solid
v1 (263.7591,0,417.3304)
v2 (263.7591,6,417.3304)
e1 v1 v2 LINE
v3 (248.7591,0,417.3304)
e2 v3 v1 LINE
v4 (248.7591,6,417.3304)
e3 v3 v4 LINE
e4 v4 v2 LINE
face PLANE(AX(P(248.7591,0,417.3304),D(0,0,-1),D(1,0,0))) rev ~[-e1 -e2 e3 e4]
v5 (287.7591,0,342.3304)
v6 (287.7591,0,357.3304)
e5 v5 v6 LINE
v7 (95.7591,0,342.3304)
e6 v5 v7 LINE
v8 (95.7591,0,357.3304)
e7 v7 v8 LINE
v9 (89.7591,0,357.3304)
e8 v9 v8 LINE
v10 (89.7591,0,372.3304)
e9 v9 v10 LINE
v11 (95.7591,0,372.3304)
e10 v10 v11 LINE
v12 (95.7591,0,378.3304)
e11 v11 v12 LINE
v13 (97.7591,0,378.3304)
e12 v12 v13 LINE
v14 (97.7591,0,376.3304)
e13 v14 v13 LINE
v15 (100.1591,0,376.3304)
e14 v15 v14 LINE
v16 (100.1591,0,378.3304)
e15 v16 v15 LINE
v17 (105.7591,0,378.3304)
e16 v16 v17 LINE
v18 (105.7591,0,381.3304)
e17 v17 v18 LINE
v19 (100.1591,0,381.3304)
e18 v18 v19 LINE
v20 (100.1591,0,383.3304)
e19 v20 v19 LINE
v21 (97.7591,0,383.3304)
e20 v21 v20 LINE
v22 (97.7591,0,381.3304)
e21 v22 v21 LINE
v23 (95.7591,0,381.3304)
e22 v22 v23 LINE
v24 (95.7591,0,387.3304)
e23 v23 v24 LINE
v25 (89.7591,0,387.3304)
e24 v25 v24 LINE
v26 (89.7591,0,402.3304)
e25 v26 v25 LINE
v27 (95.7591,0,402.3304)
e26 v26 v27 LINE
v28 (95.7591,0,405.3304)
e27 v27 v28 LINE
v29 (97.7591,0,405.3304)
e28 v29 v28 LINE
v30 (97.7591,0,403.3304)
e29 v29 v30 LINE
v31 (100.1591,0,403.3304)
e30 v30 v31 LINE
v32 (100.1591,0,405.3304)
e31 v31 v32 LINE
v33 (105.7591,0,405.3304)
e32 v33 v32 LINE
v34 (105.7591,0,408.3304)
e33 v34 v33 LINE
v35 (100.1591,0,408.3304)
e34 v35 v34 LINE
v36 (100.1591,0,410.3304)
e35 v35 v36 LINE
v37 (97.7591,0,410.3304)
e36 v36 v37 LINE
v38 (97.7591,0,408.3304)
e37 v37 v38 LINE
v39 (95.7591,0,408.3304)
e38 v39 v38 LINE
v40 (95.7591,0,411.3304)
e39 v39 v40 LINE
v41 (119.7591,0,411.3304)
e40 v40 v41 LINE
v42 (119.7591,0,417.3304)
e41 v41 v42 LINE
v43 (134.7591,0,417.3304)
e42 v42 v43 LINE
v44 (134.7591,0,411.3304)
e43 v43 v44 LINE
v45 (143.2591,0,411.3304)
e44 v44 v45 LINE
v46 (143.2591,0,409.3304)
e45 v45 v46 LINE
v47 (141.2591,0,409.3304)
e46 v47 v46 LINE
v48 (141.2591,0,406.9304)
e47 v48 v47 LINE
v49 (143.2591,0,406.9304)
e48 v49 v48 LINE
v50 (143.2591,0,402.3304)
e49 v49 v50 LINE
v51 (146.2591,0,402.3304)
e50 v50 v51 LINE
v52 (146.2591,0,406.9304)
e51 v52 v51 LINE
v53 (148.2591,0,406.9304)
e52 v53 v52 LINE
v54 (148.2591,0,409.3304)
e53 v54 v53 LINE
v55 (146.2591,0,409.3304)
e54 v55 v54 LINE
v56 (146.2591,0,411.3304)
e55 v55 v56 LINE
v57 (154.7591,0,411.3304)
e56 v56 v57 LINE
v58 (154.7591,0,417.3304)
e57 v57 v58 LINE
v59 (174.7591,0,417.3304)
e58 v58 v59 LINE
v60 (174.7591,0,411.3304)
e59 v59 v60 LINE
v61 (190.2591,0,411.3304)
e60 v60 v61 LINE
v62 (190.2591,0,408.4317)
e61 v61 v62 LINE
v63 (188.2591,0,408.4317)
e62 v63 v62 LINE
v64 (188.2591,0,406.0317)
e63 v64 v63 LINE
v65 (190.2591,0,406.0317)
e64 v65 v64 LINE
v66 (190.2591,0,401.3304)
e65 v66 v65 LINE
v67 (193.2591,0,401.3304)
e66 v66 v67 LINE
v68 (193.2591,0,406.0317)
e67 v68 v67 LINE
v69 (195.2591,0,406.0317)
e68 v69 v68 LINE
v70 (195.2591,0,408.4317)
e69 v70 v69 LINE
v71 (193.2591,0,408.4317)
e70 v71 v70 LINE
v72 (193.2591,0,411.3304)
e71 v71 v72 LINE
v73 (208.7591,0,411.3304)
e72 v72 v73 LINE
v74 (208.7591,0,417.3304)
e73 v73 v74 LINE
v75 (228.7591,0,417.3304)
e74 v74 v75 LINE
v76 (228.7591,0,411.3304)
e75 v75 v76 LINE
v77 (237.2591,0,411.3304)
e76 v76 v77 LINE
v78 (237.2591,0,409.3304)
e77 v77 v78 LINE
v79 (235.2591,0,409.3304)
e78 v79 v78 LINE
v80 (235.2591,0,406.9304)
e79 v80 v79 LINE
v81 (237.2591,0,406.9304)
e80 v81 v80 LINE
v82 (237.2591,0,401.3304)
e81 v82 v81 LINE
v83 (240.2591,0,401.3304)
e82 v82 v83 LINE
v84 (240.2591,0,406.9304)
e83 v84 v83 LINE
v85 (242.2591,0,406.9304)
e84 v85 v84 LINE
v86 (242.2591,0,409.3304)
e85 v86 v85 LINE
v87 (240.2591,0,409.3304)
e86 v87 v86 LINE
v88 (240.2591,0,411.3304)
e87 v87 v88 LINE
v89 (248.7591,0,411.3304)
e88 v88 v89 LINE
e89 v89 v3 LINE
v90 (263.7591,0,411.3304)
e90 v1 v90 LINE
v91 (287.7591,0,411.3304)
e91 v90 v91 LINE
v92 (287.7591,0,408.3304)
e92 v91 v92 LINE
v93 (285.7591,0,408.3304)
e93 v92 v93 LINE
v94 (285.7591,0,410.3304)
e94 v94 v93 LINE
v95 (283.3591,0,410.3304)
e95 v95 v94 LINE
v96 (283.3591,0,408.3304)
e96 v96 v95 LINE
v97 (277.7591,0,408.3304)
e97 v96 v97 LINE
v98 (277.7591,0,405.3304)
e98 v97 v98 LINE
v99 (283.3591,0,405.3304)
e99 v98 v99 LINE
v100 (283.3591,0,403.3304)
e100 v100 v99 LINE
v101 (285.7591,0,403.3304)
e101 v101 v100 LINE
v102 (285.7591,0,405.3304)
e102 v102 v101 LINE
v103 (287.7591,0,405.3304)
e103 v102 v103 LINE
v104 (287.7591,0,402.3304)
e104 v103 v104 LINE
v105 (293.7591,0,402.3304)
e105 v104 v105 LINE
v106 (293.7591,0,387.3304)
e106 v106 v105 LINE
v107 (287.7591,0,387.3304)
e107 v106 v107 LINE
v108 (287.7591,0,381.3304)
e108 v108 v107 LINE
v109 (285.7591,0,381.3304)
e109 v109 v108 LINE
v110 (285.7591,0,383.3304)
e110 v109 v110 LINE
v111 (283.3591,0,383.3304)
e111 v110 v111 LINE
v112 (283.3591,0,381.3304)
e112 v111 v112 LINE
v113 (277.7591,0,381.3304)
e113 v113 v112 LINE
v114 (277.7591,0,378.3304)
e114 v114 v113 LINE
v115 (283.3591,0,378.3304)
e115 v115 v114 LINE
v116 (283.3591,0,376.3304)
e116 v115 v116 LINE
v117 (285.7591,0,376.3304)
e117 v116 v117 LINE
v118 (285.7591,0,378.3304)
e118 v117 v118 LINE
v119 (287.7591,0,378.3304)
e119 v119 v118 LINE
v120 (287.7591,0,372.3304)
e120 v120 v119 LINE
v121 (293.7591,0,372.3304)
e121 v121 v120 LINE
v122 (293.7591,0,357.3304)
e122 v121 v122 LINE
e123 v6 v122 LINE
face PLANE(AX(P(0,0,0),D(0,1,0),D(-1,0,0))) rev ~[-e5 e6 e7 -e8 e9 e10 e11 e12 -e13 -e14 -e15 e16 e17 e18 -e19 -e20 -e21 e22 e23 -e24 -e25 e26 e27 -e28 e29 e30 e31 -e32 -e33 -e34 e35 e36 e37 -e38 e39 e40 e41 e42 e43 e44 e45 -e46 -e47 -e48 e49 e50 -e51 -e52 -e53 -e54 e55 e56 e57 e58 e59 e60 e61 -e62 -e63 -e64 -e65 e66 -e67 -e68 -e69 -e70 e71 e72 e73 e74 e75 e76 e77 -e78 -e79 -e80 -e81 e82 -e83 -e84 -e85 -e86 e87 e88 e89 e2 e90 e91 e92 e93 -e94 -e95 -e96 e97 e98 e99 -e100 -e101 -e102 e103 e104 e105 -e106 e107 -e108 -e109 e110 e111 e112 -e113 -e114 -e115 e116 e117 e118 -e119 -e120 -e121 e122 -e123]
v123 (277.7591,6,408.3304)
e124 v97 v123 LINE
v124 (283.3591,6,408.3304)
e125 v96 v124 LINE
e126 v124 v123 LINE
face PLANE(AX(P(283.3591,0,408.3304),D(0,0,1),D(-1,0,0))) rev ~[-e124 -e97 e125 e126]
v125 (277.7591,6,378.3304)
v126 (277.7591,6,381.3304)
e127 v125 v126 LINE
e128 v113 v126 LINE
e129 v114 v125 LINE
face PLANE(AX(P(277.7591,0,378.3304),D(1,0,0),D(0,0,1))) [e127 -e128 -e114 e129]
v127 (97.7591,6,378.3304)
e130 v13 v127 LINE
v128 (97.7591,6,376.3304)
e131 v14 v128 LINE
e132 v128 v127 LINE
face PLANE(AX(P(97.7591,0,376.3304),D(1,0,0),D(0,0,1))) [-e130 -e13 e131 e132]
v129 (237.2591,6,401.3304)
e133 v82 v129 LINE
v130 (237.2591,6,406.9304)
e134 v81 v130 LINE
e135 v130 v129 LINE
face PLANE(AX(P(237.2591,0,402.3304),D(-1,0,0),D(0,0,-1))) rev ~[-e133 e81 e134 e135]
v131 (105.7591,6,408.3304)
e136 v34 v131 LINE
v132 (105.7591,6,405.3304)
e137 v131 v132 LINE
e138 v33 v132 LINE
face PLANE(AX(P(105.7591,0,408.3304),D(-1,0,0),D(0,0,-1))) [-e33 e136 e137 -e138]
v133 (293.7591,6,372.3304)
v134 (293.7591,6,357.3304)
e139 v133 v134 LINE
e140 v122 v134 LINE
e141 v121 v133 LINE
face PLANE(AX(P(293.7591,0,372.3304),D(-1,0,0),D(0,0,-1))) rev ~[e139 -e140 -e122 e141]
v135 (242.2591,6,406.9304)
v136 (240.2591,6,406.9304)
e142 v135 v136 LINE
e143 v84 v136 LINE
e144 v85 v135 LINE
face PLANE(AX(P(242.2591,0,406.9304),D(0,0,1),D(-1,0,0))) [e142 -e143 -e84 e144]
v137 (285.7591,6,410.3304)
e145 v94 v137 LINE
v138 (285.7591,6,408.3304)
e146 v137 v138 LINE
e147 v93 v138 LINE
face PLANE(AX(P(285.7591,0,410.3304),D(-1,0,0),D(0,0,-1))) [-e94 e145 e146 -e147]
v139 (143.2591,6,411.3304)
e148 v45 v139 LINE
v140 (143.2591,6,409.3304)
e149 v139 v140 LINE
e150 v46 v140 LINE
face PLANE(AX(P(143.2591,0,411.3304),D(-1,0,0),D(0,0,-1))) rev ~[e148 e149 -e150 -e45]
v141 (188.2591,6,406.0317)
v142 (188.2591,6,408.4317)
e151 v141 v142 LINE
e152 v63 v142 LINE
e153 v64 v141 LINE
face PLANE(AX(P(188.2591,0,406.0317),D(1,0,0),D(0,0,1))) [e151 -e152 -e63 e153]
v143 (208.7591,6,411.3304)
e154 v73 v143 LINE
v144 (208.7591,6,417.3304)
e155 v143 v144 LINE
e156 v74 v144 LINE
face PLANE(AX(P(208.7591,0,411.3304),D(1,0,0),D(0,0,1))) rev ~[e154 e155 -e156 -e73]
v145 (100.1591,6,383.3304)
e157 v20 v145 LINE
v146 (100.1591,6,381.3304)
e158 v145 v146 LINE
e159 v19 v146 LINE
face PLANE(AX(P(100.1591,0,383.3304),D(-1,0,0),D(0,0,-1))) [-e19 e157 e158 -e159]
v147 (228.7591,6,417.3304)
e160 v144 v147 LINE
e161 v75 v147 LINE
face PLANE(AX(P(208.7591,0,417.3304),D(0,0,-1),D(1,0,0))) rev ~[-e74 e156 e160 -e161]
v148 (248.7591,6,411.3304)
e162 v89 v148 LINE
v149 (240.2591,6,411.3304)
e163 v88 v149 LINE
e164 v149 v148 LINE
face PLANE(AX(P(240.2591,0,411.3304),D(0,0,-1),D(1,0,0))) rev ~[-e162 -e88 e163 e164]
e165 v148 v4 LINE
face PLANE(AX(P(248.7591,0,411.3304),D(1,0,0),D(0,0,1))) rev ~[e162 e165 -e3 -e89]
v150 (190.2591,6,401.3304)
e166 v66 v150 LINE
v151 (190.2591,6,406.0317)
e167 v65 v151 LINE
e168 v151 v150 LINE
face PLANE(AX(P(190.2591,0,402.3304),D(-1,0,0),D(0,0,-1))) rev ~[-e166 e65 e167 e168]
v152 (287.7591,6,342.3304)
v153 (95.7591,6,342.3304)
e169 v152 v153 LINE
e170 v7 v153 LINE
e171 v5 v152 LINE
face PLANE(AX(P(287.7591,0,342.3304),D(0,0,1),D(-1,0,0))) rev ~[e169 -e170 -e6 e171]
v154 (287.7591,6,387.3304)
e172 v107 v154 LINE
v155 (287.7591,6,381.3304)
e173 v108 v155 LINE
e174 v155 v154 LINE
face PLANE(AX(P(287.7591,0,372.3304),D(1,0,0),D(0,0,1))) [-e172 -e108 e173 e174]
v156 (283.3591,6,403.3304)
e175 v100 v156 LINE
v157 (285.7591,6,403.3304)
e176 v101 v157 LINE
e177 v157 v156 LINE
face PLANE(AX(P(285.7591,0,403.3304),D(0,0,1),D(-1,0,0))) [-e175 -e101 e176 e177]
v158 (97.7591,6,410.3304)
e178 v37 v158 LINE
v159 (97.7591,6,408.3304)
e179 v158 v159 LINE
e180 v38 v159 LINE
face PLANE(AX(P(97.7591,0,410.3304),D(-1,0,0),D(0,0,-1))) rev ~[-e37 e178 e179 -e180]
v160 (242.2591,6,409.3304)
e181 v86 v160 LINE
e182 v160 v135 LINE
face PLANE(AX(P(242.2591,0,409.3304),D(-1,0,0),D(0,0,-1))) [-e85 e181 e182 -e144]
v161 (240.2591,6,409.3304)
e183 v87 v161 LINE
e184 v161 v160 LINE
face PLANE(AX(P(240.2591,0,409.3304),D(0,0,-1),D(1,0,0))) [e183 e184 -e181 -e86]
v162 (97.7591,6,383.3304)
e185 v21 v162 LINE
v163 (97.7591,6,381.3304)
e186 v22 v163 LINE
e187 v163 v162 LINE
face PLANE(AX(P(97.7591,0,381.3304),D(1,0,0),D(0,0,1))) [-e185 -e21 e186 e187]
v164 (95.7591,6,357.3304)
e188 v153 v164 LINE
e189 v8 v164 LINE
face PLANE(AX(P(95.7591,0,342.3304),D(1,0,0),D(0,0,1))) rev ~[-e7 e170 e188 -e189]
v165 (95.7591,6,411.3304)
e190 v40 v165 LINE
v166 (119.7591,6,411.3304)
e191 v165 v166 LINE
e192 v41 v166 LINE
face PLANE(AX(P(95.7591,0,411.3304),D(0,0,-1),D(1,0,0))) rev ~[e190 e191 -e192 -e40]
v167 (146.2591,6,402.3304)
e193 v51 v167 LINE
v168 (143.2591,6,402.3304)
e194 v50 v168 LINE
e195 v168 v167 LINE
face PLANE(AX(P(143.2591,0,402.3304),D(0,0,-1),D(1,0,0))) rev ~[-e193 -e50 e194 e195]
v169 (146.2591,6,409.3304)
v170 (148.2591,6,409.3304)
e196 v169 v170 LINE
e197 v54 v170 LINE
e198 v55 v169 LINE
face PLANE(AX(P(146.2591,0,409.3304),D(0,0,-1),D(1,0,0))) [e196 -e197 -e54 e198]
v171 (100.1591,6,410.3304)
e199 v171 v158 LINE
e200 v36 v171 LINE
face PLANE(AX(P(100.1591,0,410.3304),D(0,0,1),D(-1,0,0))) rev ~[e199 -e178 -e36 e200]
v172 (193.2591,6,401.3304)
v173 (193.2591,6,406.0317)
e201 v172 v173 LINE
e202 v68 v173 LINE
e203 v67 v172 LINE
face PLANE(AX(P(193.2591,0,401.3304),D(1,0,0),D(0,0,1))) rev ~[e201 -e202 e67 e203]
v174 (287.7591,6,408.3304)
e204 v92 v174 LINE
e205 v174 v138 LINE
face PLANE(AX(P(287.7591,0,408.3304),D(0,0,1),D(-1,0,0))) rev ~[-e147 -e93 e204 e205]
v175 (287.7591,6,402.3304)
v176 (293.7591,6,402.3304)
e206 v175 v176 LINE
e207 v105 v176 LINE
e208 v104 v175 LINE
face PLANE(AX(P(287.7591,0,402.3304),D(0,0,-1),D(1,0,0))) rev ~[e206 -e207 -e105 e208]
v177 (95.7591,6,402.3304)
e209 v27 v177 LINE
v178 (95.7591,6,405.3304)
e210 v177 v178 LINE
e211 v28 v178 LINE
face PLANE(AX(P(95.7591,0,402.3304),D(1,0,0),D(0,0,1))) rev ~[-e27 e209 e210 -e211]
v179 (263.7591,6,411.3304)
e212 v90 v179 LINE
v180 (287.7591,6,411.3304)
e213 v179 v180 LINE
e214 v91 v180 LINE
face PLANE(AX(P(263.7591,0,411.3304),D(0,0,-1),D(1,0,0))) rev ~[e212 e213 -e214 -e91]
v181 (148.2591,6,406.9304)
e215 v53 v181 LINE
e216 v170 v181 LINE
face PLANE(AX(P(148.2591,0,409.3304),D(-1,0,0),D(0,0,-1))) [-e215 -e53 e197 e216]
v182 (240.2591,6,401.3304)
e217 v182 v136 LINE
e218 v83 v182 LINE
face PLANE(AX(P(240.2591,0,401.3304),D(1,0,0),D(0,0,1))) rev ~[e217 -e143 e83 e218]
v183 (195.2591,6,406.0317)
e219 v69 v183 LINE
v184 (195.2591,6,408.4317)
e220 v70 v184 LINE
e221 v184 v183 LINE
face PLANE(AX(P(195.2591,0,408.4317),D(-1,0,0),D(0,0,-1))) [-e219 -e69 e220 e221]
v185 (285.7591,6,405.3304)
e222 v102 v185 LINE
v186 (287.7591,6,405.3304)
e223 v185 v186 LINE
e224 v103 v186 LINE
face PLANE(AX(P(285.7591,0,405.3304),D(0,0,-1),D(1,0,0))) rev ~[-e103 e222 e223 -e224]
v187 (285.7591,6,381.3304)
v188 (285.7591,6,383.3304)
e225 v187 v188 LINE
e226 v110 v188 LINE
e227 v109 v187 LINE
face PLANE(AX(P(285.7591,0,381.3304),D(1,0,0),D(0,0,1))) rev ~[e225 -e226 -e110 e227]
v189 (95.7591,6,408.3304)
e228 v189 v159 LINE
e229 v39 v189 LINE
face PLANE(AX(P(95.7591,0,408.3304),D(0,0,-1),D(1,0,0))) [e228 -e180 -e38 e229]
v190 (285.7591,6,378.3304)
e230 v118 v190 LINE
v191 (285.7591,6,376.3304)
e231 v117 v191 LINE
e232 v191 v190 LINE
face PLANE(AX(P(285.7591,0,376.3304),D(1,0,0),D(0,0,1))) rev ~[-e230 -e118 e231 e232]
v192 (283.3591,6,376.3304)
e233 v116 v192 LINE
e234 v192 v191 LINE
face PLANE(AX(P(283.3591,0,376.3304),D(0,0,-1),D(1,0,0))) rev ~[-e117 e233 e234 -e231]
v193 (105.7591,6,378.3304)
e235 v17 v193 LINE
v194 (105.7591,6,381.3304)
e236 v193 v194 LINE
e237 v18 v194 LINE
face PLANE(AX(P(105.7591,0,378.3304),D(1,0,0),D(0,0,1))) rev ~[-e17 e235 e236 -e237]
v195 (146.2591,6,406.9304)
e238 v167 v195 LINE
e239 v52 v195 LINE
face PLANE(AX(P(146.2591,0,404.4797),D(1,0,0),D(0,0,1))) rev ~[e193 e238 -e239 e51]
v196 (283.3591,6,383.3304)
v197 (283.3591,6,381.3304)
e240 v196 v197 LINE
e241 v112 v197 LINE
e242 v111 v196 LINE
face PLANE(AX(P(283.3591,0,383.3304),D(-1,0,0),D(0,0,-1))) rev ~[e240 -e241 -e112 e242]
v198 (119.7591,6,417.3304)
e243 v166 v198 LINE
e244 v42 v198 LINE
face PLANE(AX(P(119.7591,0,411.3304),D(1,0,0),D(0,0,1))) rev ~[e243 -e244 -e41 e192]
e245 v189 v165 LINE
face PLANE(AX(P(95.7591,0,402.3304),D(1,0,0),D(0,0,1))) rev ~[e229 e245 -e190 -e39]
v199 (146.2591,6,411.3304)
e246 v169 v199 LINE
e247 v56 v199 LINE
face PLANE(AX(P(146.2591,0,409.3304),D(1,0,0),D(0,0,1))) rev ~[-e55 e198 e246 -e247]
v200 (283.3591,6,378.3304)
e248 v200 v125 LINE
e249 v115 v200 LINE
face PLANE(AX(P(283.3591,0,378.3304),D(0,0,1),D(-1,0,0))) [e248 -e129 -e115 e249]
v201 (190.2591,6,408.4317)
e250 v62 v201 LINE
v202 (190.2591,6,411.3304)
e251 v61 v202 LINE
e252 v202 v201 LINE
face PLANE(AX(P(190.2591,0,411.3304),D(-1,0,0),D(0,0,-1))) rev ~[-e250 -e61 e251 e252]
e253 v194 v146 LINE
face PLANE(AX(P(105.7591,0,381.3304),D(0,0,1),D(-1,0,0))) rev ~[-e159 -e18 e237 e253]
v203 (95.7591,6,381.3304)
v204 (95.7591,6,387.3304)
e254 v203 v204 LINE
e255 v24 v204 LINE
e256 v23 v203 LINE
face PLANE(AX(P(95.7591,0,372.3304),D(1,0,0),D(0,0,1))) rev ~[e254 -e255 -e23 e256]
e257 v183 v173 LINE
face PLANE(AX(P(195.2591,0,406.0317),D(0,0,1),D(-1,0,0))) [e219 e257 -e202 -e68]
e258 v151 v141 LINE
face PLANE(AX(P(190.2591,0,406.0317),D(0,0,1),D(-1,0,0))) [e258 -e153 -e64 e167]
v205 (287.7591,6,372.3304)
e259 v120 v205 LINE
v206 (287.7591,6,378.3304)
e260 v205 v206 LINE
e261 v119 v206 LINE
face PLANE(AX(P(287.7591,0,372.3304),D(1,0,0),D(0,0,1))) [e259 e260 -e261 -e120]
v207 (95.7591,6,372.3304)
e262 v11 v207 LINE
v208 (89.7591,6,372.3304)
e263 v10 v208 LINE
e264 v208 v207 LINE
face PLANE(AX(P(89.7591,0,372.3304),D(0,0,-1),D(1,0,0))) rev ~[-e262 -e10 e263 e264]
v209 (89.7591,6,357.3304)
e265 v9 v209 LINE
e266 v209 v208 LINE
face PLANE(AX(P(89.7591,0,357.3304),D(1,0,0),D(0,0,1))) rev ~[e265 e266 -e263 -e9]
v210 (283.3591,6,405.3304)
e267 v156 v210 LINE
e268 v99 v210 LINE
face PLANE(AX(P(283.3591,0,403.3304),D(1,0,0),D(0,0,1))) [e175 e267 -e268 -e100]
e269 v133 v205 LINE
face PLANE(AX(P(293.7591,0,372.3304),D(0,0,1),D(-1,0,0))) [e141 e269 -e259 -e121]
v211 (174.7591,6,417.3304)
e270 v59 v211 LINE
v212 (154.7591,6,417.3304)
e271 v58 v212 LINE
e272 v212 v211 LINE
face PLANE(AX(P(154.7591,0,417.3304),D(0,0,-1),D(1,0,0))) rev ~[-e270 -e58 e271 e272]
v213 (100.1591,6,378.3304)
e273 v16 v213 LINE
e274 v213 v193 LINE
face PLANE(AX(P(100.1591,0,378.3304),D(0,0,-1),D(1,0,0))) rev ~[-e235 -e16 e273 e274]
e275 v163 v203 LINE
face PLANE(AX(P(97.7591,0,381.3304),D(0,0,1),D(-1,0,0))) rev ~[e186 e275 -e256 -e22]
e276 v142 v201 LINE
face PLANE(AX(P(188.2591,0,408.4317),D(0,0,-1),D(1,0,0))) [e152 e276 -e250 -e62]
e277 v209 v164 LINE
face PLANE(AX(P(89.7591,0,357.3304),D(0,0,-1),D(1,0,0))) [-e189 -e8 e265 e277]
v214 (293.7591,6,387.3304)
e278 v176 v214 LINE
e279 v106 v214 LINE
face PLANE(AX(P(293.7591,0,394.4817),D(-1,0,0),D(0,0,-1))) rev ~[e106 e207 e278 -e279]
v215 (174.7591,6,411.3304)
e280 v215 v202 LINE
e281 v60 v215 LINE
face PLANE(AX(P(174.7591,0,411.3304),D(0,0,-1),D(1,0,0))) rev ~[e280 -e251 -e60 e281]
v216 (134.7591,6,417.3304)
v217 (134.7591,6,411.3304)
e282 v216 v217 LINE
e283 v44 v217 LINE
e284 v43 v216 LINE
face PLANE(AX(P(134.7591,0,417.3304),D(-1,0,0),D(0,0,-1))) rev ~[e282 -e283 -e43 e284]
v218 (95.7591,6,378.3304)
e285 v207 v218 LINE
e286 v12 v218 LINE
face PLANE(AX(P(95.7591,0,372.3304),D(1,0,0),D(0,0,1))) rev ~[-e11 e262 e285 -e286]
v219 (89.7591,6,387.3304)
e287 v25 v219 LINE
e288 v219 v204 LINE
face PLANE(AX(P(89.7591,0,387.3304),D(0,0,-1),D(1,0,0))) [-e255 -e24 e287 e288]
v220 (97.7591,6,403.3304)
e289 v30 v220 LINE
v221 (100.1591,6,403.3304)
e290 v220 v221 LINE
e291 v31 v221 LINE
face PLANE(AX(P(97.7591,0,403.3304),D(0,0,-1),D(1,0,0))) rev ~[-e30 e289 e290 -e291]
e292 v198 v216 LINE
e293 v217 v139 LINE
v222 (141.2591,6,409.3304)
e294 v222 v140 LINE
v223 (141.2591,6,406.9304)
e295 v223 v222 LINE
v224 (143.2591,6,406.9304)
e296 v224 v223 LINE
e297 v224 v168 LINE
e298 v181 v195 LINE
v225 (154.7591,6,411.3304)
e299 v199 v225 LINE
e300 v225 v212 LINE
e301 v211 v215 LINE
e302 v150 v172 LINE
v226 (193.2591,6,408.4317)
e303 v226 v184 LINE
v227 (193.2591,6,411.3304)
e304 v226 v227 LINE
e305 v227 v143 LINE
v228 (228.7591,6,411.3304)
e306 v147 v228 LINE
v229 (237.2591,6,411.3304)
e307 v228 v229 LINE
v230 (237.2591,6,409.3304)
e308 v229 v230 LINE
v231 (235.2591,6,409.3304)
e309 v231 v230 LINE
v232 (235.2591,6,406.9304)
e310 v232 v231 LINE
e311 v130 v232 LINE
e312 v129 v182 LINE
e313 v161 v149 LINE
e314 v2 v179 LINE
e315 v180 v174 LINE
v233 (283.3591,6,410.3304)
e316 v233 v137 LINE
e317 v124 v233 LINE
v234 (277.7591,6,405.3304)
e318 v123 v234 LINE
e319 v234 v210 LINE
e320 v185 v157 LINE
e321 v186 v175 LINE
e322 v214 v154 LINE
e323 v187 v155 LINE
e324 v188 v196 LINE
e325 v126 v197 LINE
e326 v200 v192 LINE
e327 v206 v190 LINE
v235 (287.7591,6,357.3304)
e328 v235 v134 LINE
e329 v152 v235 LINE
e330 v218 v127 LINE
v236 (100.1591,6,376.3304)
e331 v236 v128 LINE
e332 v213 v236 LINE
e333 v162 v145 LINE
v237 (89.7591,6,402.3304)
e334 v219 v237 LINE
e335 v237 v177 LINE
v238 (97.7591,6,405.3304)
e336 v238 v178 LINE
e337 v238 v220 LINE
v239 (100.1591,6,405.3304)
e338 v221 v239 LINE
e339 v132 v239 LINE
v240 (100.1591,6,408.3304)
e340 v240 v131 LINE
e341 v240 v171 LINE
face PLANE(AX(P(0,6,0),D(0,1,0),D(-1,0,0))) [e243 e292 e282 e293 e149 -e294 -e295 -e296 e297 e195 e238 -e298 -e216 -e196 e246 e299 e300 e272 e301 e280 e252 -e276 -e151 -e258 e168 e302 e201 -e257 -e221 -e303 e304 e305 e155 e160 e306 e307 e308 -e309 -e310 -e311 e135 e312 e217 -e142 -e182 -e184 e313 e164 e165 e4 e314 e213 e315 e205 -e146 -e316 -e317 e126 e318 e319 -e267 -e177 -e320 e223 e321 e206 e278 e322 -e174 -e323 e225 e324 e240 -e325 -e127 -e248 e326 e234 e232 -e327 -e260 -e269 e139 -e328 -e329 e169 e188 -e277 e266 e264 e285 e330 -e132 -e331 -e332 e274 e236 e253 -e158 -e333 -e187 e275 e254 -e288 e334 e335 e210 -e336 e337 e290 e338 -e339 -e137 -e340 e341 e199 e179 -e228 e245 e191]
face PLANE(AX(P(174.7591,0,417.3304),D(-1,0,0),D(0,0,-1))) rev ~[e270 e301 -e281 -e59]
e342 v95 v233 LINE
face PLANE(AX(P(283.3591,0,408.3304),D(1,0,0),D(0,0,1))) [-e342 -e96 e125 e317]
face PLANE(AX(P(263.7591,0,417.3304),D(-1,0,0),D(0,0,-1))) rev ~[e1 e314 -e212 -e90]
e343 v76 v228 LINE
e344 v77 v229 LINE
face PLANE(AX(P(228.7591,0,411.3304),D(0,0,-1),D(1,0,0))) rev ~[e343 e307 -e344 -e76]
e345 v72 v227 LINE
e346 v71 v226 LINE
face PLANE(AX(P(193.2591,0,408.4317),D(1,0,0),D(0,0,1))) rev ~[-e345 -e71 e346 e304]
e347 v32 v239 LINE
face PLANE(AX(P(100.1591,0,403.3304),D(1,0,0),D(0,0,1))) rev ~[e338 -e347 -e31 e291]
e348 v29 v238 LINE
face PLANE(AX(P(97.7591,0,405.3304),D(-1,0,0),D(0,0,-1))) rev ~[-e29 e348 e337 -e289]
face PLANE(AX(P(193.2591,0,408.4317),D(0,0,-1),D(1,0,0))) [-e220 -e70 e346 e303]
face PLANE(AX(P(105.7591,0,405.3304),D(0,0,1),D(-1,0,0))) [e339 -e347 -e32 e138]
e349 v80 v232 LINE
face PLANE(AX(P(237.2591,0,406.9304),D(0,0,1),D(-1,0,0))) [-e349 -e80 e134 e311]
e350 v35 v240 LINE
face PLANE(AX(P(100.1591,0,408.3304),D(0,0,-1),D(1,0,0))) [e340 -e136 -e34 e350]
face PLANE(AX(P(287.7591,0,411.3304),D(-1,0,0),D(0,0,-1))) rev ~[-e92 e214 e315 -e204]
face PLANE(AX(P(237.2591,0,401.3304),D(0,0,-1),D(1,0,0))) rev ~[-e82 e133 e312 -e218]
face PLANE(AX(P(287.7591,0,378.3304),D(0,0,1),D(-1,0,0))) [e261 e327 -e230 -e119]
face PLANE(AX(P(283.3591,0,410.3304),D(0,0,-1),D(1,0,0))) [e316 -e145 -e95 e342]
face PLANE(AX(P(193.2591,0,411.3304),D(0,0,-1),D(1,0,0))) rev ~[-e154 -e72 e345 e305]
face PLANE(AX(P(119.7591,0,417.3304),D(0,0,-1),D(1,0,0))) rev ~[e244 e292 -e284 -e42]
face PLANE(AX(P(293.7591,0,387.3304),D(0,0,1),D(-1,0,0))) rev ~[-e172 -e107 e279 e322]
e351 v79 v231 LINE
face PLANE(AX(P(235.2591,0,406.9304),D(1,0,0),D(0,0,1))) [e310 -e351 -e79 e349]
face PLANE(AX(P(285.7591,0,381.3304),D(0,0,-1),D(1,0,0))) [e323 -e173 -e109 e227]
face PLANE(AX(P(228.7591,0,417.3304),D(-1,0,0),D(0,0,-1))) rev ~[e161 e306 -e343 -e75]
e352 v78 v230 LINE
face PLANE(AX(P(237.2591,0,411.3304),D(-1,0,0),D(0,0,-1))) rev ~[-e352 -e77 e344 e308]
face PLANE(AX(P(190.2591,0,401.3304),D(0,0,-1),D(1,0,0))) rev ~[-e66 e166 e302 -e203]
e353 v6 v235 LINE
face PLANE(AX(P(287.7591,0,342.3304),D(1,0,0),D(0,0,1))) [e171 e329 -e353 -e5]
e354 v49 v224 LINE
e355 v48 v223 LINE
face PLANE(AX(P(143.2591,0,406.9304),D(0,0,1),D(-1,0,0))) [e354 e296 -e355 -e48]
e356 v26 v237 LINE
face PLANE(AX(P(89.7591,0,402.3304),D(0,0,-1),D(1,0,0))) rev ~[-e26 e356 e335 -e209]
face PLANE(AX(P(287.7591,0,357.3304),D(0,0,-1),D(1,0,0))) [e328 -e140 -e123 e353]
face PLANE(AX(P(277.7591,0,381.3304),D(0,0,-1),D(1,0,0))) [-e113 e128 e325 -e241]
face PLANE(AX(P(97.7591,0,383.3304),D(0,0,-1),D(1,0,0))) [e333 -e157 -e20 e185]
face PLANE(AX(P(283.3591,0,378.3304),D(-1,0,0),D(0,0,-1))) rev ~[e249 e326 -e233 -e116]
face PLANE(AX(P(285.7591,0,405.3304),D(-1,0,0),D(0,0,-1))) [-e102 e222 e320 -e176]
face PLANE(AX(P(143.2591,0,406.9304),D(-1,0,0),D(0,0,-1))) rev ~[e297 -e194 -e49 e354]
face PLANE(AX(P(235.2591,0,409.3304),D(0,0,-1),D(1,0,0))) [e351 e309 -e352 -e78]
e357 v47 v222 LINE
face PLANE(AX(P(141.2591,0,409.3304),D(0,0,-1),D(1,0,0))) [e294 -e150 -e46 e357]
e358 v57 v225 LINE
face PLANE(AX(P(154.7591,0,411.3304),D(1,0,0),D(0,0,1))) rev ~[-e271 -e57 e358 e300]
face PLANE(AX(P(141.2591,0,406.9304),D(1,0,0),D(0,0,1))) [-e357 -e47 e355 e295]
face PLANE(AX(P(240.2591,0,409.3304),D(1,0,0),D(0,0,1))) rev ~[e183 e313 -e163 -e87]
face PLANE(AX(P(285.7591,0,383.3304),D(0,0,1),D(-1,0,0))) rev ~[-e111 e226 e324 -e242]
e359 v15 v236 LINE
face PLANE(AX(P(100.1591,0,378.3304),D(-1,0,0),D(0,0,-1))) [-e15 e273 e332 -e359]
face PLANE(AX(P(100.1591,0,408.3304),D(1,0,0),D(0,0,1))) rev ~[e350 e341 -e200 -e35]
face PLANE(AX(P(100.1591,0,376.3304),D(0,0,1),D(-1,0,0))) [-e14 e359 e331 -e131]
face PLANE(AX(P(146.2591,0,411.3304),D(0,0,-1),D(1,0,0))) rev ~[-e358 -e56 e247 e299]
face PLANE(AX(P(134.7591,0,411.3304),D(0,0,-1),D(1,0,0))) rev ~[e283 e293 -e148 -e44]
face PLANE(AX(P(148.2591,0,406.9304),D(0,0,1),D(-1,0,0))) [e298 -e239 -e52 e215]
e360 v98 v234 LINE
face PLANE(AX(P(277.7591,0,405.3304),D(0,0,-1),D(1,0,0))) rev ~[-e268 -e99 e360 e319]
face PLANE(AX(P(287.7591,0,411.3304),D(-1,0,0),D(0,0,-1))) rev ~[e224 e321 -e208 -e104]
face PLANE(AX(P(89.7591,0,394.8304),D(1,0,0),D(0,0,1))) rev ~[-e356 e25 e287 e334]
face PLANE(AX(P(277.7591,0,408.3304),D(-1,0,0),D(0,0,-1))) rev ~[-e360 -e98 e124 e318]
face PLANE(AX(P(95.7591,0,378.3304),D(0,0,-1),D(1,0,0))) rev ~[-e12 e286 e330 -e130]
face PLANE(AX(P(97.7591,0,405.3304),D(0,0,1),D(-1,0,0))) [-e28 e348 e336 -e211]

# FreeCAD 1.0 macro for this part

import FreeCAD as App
import Part
import Sketcher
from FreeCAD import Vector


def add_polygon(sketch, points):
    """Adds a closed chain of lines whose ends are joined by coincident constraints."""
    first, n = sketch.GeometryCount, len(points)
    for a, b in zip(points, points[1:] + points[:1]):
        sketch.addGeometry(Part.LineSegment(App.Vector(*a, 0), App.Vector(*b, 0)), False)
    for i in range(n):
        sketch.addConstraint(Sketcher.Constraint("Coincident", first + i, 2, first + (i + 1) % n, 1))

doc = App.newDocument("Part")
body = doc.addObject("PartDesign::Body", "Body")

sketch1 = body.newObject("Sketcher::SketchObject", "Sketch")
sketch1.AttachmentSupport = (doc.getObject("XZ_Plane"), [""])
sketch1.MapMode = "FlatFace"
add_polygon(sketch1, [(287.7591, 357.3304), (287.7591, 342.3304), (95.7591, 342.3304), (95.7591, 357.3304), (89.7591, 357.3304), (89.7591, 372.3304), (95.7591, 372.3304), (95.7591, 387.3304), (89.7591, 387.3304), (89.7591, 402.3304), (95.7591, 402.3304), (95.7591, 411.3304), (119.7591, 411.3304), (119.7591, 417.3304), (134.7591, 417.3304), (134.7591, 411.3304), (143.2591, 411.3304), (143.2591, 409.3304), (141.2591, 409.3304), (141.2591, 406.9304), (143.2591, 406.9304), (143.2591, 402.3304), (146.2591, 402.3304), (146.2591, 406.9304), (148.2591, 406.9304), (148.2591, 409.3304), (146.2591, 409.3304), (146.2591, 411.3304), (154.7591, 411.3304), (154.7591, 417.3304), (174.7591, 417.3304), (174.7591, 411.3304), (190.2591, 411.3304), (190.2591, 408.4317), (188.2591, 408.4317), (188.2591, 406.0317), (190.2591, 406.0317), (190.2591, 401.3304), (193.2591, 401.3304), (193.2591, 406.0317), (195.2591, 406.0317), (195.2591, 408.4317), (193.2591, 408.4317), (193.2591, 411.3304), (208.7591, 411.3304), (208.7591, 417.3304), (228.7591, 417.3304), (228.7591, 411.3304), (237.2591, 411.3304), (237.2591, 409.3304), (235.2591, 409.3304), (235.2591, 406.9304), (237.2591, 406.9304), (237.2591, 401.3304), (240.2591, 401.3304), (240.2591, 406.9304), (242.2591, 406.9304), (242.2591, 409.3304), (240.2591, 409.3304), (240.2591, 411.3304), (248.7591, 411.3304), (248.7591, 417.3304), (263.7591, 417.3304), (263.7591, 411.3304), (287.7591, 411.3304), (287.7591, 402.3304), (293.7591, 402.3304), (293.7591, 387.3304), (287.7591, 387.3304), (287.7591, 372.3304), (293.7591, 372.3304), (293.7591, 357.3304)])
sketch1.addConstraint(Sketcher.Constraint("Vertical", 0))
sketch1.addConstraint(Sketcher.Constraint("Horizontal", 1))
sketch1.addConstraint(Sketcher.Constraint("Vertical", 2))
sketch1.addConstraint(Sketcher.Constraint("Horizontal", 3))
sketch1.addConstraint(Sketcher.Constraint("Vertical", 4))
sketch1.addConstraint(Sketcher.Constraint("Horizontal", 5))
sketch1.addConstraint(Sketcher.Constraint("Vertical", 6))
sketch1.addConstraint(Sketcher.Constraint("Horizontal", 7))
sketch1.addConstraint(Sketcher.Constraint("Vertical", 8))
sketch1.addConstraint(Sketcher.Constraint("Horizontal", 9))
sketch1.addConstraint(Sketcher.Constraint("Vertical", 10))
sketch1.addConstraint(Sketcher.Constraint("Horizontal", 11))
sketch1.addConstraint(Sketcher.Constraint("Vertical", 12))
sketch1.addConstraint(Sketcher.Constraint("Horizontal", 13))
sketch1.addConstraint(Sketcher.Constraint("Vertical", 14))
sketch1.addConstraint(Sketcher.Constraint("Horizontal", 15))
sketch1.addConstraint(Sketcher.Constraint("Vertical", 16))
sketch1.addConstraint(Sketcher.Constraint("Horizontal", 17))
sketch1.addConstraint(Sketcher.Constraint("Vertical", 18))
sketch1.addConstraint(Sketcher.Constraint("Horizontal", 19))
sketch1.addConstraint(Sketcher.Constraint("Vertical", 20))
sketch1.addConstraint(Sketcher.Constraint("Horizontal", 21))
sketch1.addConstraint(Sketcher.Constraint("Vertical", 22))
sketch1.addConstraint(Sketcher.Constraint("Horizontal", 23))
sketch1.addConstraint(Sketcher.Constraint("Vertical", 24))
sketch1.addConstraint(Sketcher.Constraint("Horizontal", 25))
sketch1.addConstraint(Sketcher.Constraint("Vertical", 26))
sketch1.addConstraint(Sketcher.Constraint("Horizontal", 27))
sketch1.addConstraint(Sketcher.Constraint("Vertical", 28))
sketch1.addConstraint(Sketcher.Constraint("Horizontal", 29))
sketch1.addConstraint(Sketcher.Constraint("Vertical", 30))
sketch1.addConstraint(Sketcher.Constraint("Horizontal", 31))
sketch1.addConstraint(Sketcher.Constraint("Vertical", 32))
sketch1.addConstraint(Sketcher.Constraint("Horizontal", 33))
sketch1.addConstraint(Sketcher.Constraint("Vertical", 34))
sketch1.addConstraint(Sketcher.Constraint("Horizontal", 35))
sketch1.addConstraint(Sketcher.Constraint("Vertical", 36))
sketch1.addConstraint(Sketcher.Constraint("Horizontal", 37))
sketch1.addConstraint(Sketcher.Constraint("Vertical", 38))
sketch1.addConstraint(Sketcher.Constraint("Horizontal", 39))
sketch1.addConstraint(Sketcher.Constraint("Vertical", 40))
sketch1.addConstraint(Sketcher.Constraint("Horizontal", 41))
sketch1.addConstraint(Sketcher.Constraint("Vertical", 42))
sketch1.addConstraint(Sketcher.Constraint("Horizontal", 43))
sketch1.addConstraint(Sketcher.Constraint("Vertical", 44))
sketch1.addConstraint(Sketcher.Constraint("Horizontal", 45))
sketch1.addConstraint(Sketcher.Constraint("Vertical", 46))
sketch1.addConstraint(Sketcher.Constraint("Horizontal", 47))
sketch1.addConstraint(Sketcher.Constraint("Vertical", 48))
sketch1.addConstraint(Sketcher.Constraint("Horizontal", 49))
sketch1.addConstraint(Sketcher.Constraint("Vertical", 50))
sketch1.addConstraint(Sketcher.Constraint("Horizontal", 51))
sketch1.addConstraint(Sketcher.Constraint("Vertical", 52))
sketch1.addConstraint(Sketcher.Constraint("Horizontal", 53))
sketch1.addConstraint(Sketcher.Constraint("Vertical", 54))
sketch1.addConstraint(Sketcher.Constraint("Horizontal", 55))
sketch1.addConstraint(Sketcher.Constraint("Vertical", 56))
sketch1.addConstraint(Sketcher.Constraint("Horizontal", 57))
sketch1.addConstraint(Sketcher.Constraint("Vertical", 58))
sketch1.addConstraint(Sketcher.Constraint("Horizontal", 59))
sketch1.addConstraint(Sketcher.Constraint("Vertical", 60))
sketch1.addConstraint(Sketcher.Constraint("Horizontal", 61))
sketch1.addConstraint(Sketcher.Constraint("Vertical", 62))
sketch1.addConstraint(Sketcher.Constraint("Horizontal", 63))
sketch1.addConstraint(Sketcher.Constraint("Vertical", 64))
sketch1.addConstraint(Sketcher.Constraint("Horizontal", 65))
sketch1.addConstraint(Sketcher.Constraint("Vertical", 66))
sketch1.addConstraint(Sketcher.Constraint("Horizontal", 67))
sketch1.addConstraint(Sketcher.Constraint("Vertical", 68))
sketch1.addConstraint(Sketcher.Constraint("Horizontal", 69))
sketch1.addConstraint(Sketcher.Constraint("Vertical", 70))
sketch1.addConstraint(Sketcher.Constraint("Horizontal", 71))
sketch1.addConstraint(Sketcher.Constraint("Horizontal", 11, 2, 14, 2))
sketch1.addConstraint(Sketcher.Constraint("Horizontal", 9, 2, 20, 2))
sketch1.addConstraint(Sketcher.Constraint("Horizontal", 19, 2, 22, 2))
sketch1.addConstraint(Sketcher.Constraint("Horizontal", 17, 2, 24, 2))
sketch1.addConstraint(Sketcher.Constraint("Horizontal", 15, 2, 26, 2))
sketch1.addConstraint(Sketcher.Constraint("Horizontal", 13, 2, 28, 2))
sketch1.addConstraint(Sketcher.Constraint("Horizontal", 27, 2, 30, 2))
sketch1.addConstraint(Sketcher.Constraint("Horizontal", 35, 2, 38, 2))
sketch1.addConstraint(Sketcher.Constraint("Horizontal", 33, 2, 40, 2))
sketch1.addConstraint(Sketcher.Constraint("Horizontal", 31, 2, 42, 2))
sketch1.addConstraint(Sketcher.Constraint("Horizontal", 29, 2, 44, 2))
sketch1.addConstraint(Sketcher.Constraint("Horizontal", 43, 2, 46, 2))
sketch1.addConstraint(Sketcher.Constraint("Horizontal", 25, 2, 48, 2))
sketch1.addConstraint(Sketcher.Constraint("Horizontal", 23, 2, 50, 2))
sketch1.addConstraint(Sketcher.Constraint("Horizontal", 37, 2, 52, 2))
sketch1.addConstraint(Sketcher.Constraint("Horizontal", 51, 2, 54, 2))
sketch1.addConstraint(Sketcher.Constraint("Horizontal", 49, 2, 56, 2))
sketch1.addConstraint(Sketcher.Constraint("Horizontal", 47, 2, 58, 2))
sketch1.addConstraint(Sketcher.Constraint("Horizontal", 45, 2, 60, 2))
sketch1.addConstraint(Sketcher.Constraint("Horizontal", 59, 2, 62, 2))
sketch1.addConstraint(Sketcher.Constraint("Horizontal", 21, 2, 64, 2))
sketch1.addConstraint(Sketcher.Constraint("Horizontal", 7, 2, 66, 2))
sketch1.addConstraint(Sketcher.Constraint("Horizontal", 5, 2, 68, 2))
sketch1.addConstraint(Sketcher.Constraint("Horizontal", 3, 2, 70, 2))
sketch1.addConstraint(Sketcher.Constraint("Vertical", 2, 2, 5, 2))
sketch1.addConstraint(Sketcher.Constraint("Vertical", 4, 2, 7, 2))
sketch1.addConstraint(Sketcher.Constraint("Vertical", 6, 2, 9, 2))
sketch1.addConstraint(Sketcher.Constraint("Vertical", 16, 2, 19, 2))
sketch1.addConstraint(Sketcher.Constraint("Vertical", 22, 2, 25, 2))
sketch1.addConstraint(Sketcher.Constraint("Vertical", 32, 2, 35, 2))
sketch1.addConstraint(Sketcher.Constraint("Vertical", 38, 2, 41, 2))
sketch1.addConstraint(Sketcher.Constraint("Vertical", 48, 2, 51, 2))
sketch1.addConstraint(Sketcher.Constraint("Vertical", 54, 2, 57, 2))
sketch1.addConstraint(Sketcher.Constraint("Vertical", 0, 2, 63, 2))
sketch1.addConstraint(Sketcher.Constraint("Vertical", 64, 2, 67, 2))
sketch1.addConstraint(Sketcher.Constraint("Vertical", 66, 2, 69, 2))
sketch1.addConstraint(Sketcher.Constraint("Equal", 19, 23))
sketch1.addConstraint(Sketcher.Constraint("Equal", 15, 27))
sketch1.addConstraint(Sketcher.Constraint("Equal", 25, 33))
sketch1.addConstraint(Sketcher.Constraint("Equal", 21, 37))
sketch1.addConstraint(Sketcher.Constraint("Equal", 35, 39))
sketch1.addConstraint(Sketcher.Constraint("Equal", 31, 43))
sketch1.addConstraint(Sketcher.Constraint("Equal", 29, 45))
sketch1.addConstraint(Sketcher.Constraint("Equal", 27, 47))
sketch1.addConstraint(Sketcher.Constraint("Equal", 41, 49))
sketch1.addConstraint(Sketcher.Constraint("Equal", 37, 53))
sketch1.addConstraint(Sketcher.Constraint("Equal", 51, 55))
sketch1.addConstraint(Sketcher.Constraint("Equal", 47, 59))
sketch1.addConstraint(Sketcher.Constraint("Equal", 13, 61))
sketch1.addConstraint(Sketcher.Constraint("Equal", 11, 63))
sketch1.addConstraint(Sketcher.Constraint("Equal", 9, 65))
sketch1.addConstraint(Sketcher.Constraint("Equal", 61, 0))
sketch1.addConstraint(Sketcher.Constraint("Equal", 2, 4))
sketch1.addConstraint(Sketcher.Constraint("Equal", 4, 6))
sketch1.addConstraint(Sketcher.Constraint("Equal", 6, 8))
sketch1.addConstraint(Sketcher.Constraint("Equal", 71, 12))
sketch1.addConstraint(Sketcher.Constraint("Equal", 57, 16))
sketch1.addConstraint(Sketcher.Constraint("Equal", 24, 34))
sketch1.addConstraint(Sketcher.Constraint("DistanceX", 3, 2, 3, 1, 6.0))
sketch1.addConstraint(Sketcher.Constraint("DistanceX", 13, 1, 13, 2, 15.0))
sketch1.addConstraint(Sketcher.Constraint("DistanceX", 17, 2, 17, 1, 2.0))
sketch1.addConstraint(Sketcher.Constraint("DistanceX", 21, 1, 21, 2, 3.0))
sketch1.addConstraint(Sketcher.Constraint("DistanceX", 29, 1, 29, 2, 20.0))
sketch1.addConstraint(Sketcher.Constraint("DistanceY", 10, 1, 10, 2, 9.0))
sketch1.addConstraint(Sketcher.Constraint("DistanceX", 15, 1, 15, 2, 8.5))
sketch1.addConstraint(Sketcher.Constraint("DistanceX", 31, 1, 31, 2, 15.5))
sketch1.addConstraint(Sketcher.Constraint("DistanceY", 18, 2, 18, 1, 2.4))
sketch1.addConstraint(Sketcher.Constraint("DistanceX", 1, 2, 1, 1, 192.0))
sketch1.addConstraint(Sketcher.Constraint("DistanceY", 52, 2, 52, 1, 5.6))
sketch1.addConstraint(Sketcher.Constraint("DistanceY", 32, 2, 32, 1, 2.8987))
sketch1.addConstraint(Sketcher.Constraint("DistanceX", -1, 1, 0, 2, 287.759))
sketch1.addConstraint(Sketcher.Constraint("DistanceY", -1, 1, 0, 2, 342.3304))
pad1 = body.newObject("PartDesign::Pad", "Pad")
pad1.Profile = sketch1
pad1.Length = 6
pad1.Reversed = True

sketch2 = body.newObject("Sketcher::SketchObject", "Sketch001")
sketch2.AttachmentSupport = (doc.getObject("XZ_Plane"), [""])
sketch2.MapMode = "FlatFace"
add_polygon(sketch2, [(285.7591, 378.3304), (287.7591, 378.3304), (287.7591, 381.3304), (285.7591, 381.3304), (285.7591, 383.3304), (283.3591, 383.3304), (283.3591, 381.3304), (277.7591, 381.3304), (277.7591, 378.3304), (283.3591, 378.3304), (283.3591, 376.3304), (285.7591, 376.3304)])
add_polygon(sketch2, [(287.7591, 405.3304), (287.7591, 408.3304), (285.7591, 408.3304), (285.7591, 410.3304), (283.3591, 410.3304), (283.3591, 408.3304), (277.7591, 408.3304), (277.7591, 405.3304), (283.3591, 405.3304), (283.3591, 403.3304), (285.7591, 403.3304), (285.7591, 405.3304)])
add_polygon(sketch2, [(95.7591, 381.3304), (95.7591, 378.3304), (97.7591, 378.3304), (97.7591, 376.3304), (100.1591, 376.3304), (100.1591, 378.3304), (105.7591, 378.3304), (105.7591, 381.3304), (100.1591, 381.3304), (100.1591, 383.3304), (97.7591, 383.3304), (97.7591, 381.3304)])
add_polygon(sketch2, [(97.7591, 408.3304), (95.7591, 408.3304), (95.7591, 405.3304), (97.7591, 405.3304), (97.7591, 403.3304), (100.1591, 403.3304), (100.1591, 405.3304), (105.7591, 405.3304), (105.7591, 408.3304), (100.1591, 408.3304), (100.1591, 410.3304), (97.7591, 410.3304)])
sketch2.addConstraint(Sketcher.Constraint("Horizontal", 0))
sketch2.addConstraint(Sketcher.Constraint("Vertical", 1))
sketch2.addConstraint(Sketcher.Constraint("Horizontal", 2))
sketch2.addConstraint(Sketcher.Constraint("Vertical", 3))
sketch2.addConstraint(Sketcher.Constraint("Horizontal", 4))
sketch2.addConstraint(Sketcher.Constraint("Vertical", 5))
sketch2.addConstraint(Sketcher.Constraint("Horizontal", 6))
sketch2.addConstraint(Sketcher.Constraint("Vertical", 7))
sketch2.addConstraint(Sketcher.Constraint("Horizontal", 8))
sketch2.addConstraint(Sketcher.Constraint("Vertical", 9))
sketch2.addConstraint(Sketcher.Constraint("Horizontal", 10))
sketch2.addConstraint(Sketcher.Constraint("Vertical", 11))
sketch2.addConstraint(Sketcher.Constraint("Vertical", 12))
sketch2.addConstraint(Sketcher.Constraint("Horizontal", 13))
sketch2.addConstraint(Sketcher.Constraint("Vertical", 14))
sketch2.addConstraint(Sketcher.Constraint("Horizontal", 15))
sketch2.addConstraint(Sketcher.Constraint("Vertical", 16))
sketch2.addConstraint(Sketcher.Constraint("Horizontal", 17))
sketch2.addConstraint(Sketcher.Constraint("Vertical", 18))
sketch2.addConstraint(Sketcher.Constraint("Horizontal", 19))
sketch2.addConstraint(Sketcher.Constraint("Vertical", 20))
sketch2.addConstraint(Sketcher.Constraint("Horizontal", 21))
sketch2.addConstraint(Sketcher.Constraint("Vertical", 22))
sketch2.addConstraint(Sketcher.Constraint("Horizontal", 23))
sketch2.addConstraint(Sketcher.Constraint("Vertical", 24))
sketch2.addConstraint(Sketcher.Constraint("Horizontal", 25))
sketch2.addConstraint(Sketcher.Constraint("Vertical", 26))
sketch2.addConstraint(Sketcher.Constraint("Horizontal", 27))
sketch2.addConstraint(Sketcher.Constraint("Vertical", 28))
sketch2.addConstraint(Sketcher.Constraint("Horizontal", 29))
sketch2.addConstraint(Sketcher.Constraint("Vertical", 30))
sketch2.addConstraint(Sketcher.Constraint("Horizontal", 31))
sketch2.addConstraint(Sketcher.Constraint("Vertical", 32))
sketch2.addConstraint(Sketcher.Constraint("Horizontal", 33))
sketch2.addConstraint(Sketcher.Constraint("Vertical", 34))
sketch2.addConstraint(Sketcher.Constraint("Horizontal", 35))
sketch2.addConstraint(Sketcher.Constraint("Horizontal", 36))
sketch2.addConstraint(Sketcher.Constraint("Vertical", 37))
sketch2.addConstraint(Sketcher.Constraint("Horizontal", 38))
sketch2.addConstraint(Sketcher.Constraint("Vertical", 39))
sketch2.addConstraint(Sketcher.Constraint("Horizontal", 40))
sketch2.addConstraint(Sketcher.Constraint("Vertical", 41))
sketch2.addConstraint(Sketcher.Constraint("Horizontal", 42))
sketch2.addConstraint(Sketcher.Constraint("Vertical", 43))
sketch2.addConstraint(Sketcher.Constraint("Horizontal", 44))
sketch2.addConstraint(Sketcher.Constraint("Vertical", 45))
sketch2.addConstraint(Sketcher.Constraint("Horizontal", 46))
sketch2.addConstraint(Sketcher.Constraint("Vertical", 47))
sketch2.addConstraint(Sketcher.Constraint("Horizontal", 2, 2, 5, 2))
sketch2.addConstraint(Sketcher.Constraint("Horizontal", 0, 2, 7, 2))
sketch2.addConstraint(Sketcher.Constraint("Horizontal", 13, 2, 16, 2))
sketch2.addConstraint(Sketcher.Constraint("Horizontal", 19, 2, 22, 2))
sketch2.addConstraint(Sketcher.Constraint("Horizontal", 11, 2, 24, 2))
sketch2.addConstraint(Sketcher.Constraint("Horizontal", 10, 2, 26, 2))
sketch2.addConstraint(Sketcher.Constraint("Horizontal", 25, 2, 28, 2))
sketch2.addConstraint(Sketcher.Constraint("Horizontal", 6, 2, 30, 2))
sketch2.addConstraint(Sketcher.Constraint("Horizontal", 4, 2, 32, 2))
sketch2.addConstraint(Sketcher.Constraint("Horizontal", 31, 2, 34, 2))
sketch2.addConstraint(Sketcher.Constraint("Horizontal", 17, 2, 36, 2))
sketch2.addConstraint(Sketcher.Constraint("Horizontal", 23, 2, 37, 2))
sketch2.addConstraint(Sketcher.Constraint("Horizontal", 21, 2, 39, 2))
sketch2.addConstraint(Sketcher.Constraint("Horizontal", 38, 2, 41, 2))
sketch2.addConstraint(Sketcher.Constraint("Horizontal", 36, 2, 43, 2))
sketch2.addConstraint(Sketcher.Constraint("Horizontal", 15, 2, 45, 2))
sketch2.addConstraint(Sketcher.Constraint("Vertical", 5, 2, 8, 2))
sketch2.addConstraint(Sketcher.Constraint("Vertical", 3, 2, 10, 2))
sketch2.addConstraint(Sketcher.Constraint("Vertical", 1, 2, 12, 2))
sketch2.addConstraint(Sketcher.Constraint("Vertical", 11, 2, 13, 2))
sketch2.addConstraint(Sketcher.Constraint("Vertical", 9, 2, 15, 2))
sketch2.addConstraint(Sketcher.Constraint("Vertical", 7, 2, 17, 2))
sketch2.addConstraint(Sketcher.Constraint("Vertical", 16, 2, 19, 2))
sketch2.addConstraint(Sketcher.Constraint("Vertical", 14, 2, 21, 2))
sketch2.addConstraint(Sketcher.Constraint("Vertical", 28, 2, 31, 2))
sketch2.addConstraint(Sketcher.Constraint("Vertical", 26, 2, 33, 2))
sketch2.addConstraint(Sketcher.Constraint("Vertical", 35, 2, 36, 2))
sketch2.addConstraint(Sketcher.Constraint("Vertical", 34, 2, 38, 2))
sketch2.addConstraint(Sketcher.Constraint("Vertical", 32, 2, 40, 2))
sketch2.addConstraint(Sketcher.Constraint("Vertical", 30, 2, 42, 2))
sketch2.addConstraint(Sketcher.Constraint("Vertical", 41, 2, 44, 2))
sketch2.addConstraint(Sketcher.Constraint("Vertical", 39, 2, 46, 2))
sketch2.addConstraint(Sketcher.Constraint("Equal", 23, 25))
sketch2.addConstraint(Sketcher.Constraint("Equal", 21, 27))
sketch2.addConstraint(Sketcher.Constraint("Equal", 19, 29))
sketch2.addConstraint(Sketcher.Constraint("Equal", 38, 3))
sketch2.addConstraint(Sketcher.Constraint("Equal", 5, 9))
sketch2.addConstraint(Sketcher.Constraint("Equal", 7, 12))
sketch2.addConstraint(Sketcher.Constraint("Equal", 11, 14))
sketch2.addConstraint(Sketcher.Constraint("Equal", 16, 20))
sketch2.addConstraint(Sketcher.Constraint("DistanceX", 0, 1, 0, 2, 2.0))
sketch2.addConstraint(Sketcher.Constraint("DistanceY", 1, 1, 1, 2, 3.0))
sketch2.addConstraint(Sketcher.Constraint("DistanceX", 4, 2, 4, 1, 2.4))
sketch2.addConstraint(Sketcher.Constraint("DistanceX", 6, 2, 1, 2, 10.0))
sketch2.addConstraint(Sketcher.Constraint("DistanceY", 3, 2, 12, 2, 25.0))
sketch2.addConstraint(Sketcher.Constraint("DistanceX", 24, 2, 7, 2, 182.0))
sketch2.addConstraint(Sketcher.Constraint("DistanceX", -1, 1, 0, 2, 287.759))
sketch2.addConstraint(Sketcher.Constraint("DistanceY", -1, 1, 0, 2, 378.3304))
pocket1 = body.newObject("PartDesign::Pocket", "Pocket")
pocket1.Profile = sketch2
pocket1.Length = 6

doc.recompute()
